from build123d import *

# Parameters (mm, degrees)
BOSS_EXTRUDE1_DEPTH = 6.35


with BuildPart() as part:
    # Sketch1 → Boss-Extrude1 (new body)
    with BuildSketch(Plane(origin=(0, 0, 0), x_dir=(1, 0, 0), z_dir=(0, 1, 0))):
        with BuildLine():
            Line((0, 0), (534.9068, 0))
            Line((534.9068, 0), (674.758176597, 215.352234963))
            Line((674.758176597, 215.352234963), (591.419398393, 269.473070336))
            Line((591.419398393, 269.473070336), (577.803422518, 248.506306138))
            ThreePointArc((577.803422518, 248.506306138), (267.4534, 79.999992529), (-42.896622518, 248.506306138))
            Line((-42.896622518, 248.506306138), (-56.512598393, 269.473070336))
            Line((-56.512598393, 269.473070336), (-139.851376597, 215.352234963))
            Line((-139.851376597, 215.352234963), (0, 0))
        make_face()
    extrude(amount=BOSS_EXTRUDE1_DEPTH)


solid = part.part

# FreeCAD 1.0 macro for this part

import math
import FreeCAD as App
import Part
import Sketcher

V = App.Vector
Q = App.Units.Quantity

doc = App.newDocument("Part")
params = doc.addObject("Spreadsheet::Sheet", "Params")
for row, (alias, value) in enumerate([
    ("sketch1_length", "25 mm"),
    ("pad1_length", "6.35 mm"),
], start=1):
    params.set(f"A{row}", alias)
    params.set(f"B{row}", "=" + value)
    params.setAlias(f"B{row}", alias)

body = doc.addObject("PartDesign::Body", "Body")

# Sketch on XZ plane
sketch1 = body.newObject("Sketcher::SketchObject", "Sketch")
sketch1.AttachmentSupport = (doc.getObject("XZ_Plane"), [""])
sketch1.MapMode = "FlatFace"
sketch1.addGeometry([
    Part.LineSegment(V(0, 0, 0), V(535, 0, 0)),  # 0
    Part.LineSegment(V(535, 0, 0), V(675, -215, 0)),  # 1
    Part.LineSegment(V(675, -215, 0), V(591, -269, 0)),  # 2
    Part.LineSegment(V(591, -269, 0), V(578, -249, 0)),  # 3
    Part.ArcOfCircle(Part.Circle(V(267, -450, 0), V(0, 0, 1), 370), math.radians(33), math.radians(147)),  # 4
    Part.LineSegment(V(-43, -249, 0), V(-57, -269, 0)),  # 5
    Part.LineSegment(V(-57, -269, 0), V(-140, -215, 0)),  # 6
    Part.LineSegment(V(-140, -215, 0), V(0, 0, 0)),  # 7
], False)
sketch1.addConstraint([
    Sketcher.Constraint("Coincident", 0, 2, 1, 1),
    Sketcher.Constraint("Coincident", 1, 2, 2, 1),
    Sketcher.Constraint("Coincident", 2, 2, 3, 1),
    Sketcher.Constraint("Tangent", 3, 2, 4, 1),
    Sketcher.Constraint("Tangent", 4, 2, 5, 1),
    Sketcher.Constraint("Coincident", 5, 2, 6, 1),
    Sketcher.Constraint("Coincident", 6, 2, 7, 1),
    Sketcher.Constraint("Coincident", 7, 2, 0, 1),
    Sketcher.Constraint("Horizontal", 0),
    Sketcher.Constraint("Coincident", 7, 2, -1, 1),
    Sketcher.Constraint("Perpendicular", 1, 2),
    Sketcher.Constraint("Perpendicular", 2, 3),
    Sketcher.Constraint("Perpendicular", 5, 6),
    Sketcher.Constraint("Perpendicular", 6, 7),
    Sketcher.Constraint("Horizontal", 3, 2, 4, 2),
    Sketcher.Constraint("Horizontal", 2, 2, 5, 2),
    Sketcher.Constraint("Horizontal", 1, 2, 6, 2),
    Sketcher.Constraint("Angle", 1, Q("-57 deg")),
    Sketcher.Constraint("Distance", 3, 25.0),
    Sketcher.Constraint("DistanceX", 0, 1, 0, 2, 534.9068),
    Sketcher.Constraint("Radius", 4, 370.049975),
    Sketcher.Constraint("Distance", 1, 256.7781),
])
sketch1.setExpression("Constraints[18]", "Params.sketch1_length")
pad1 = body.newObject("PartDesign::Pad", "Pad")
pad1.Profile = sketch1
pad1.setExpression("Length", "Params.pad1_length")
pad1.Reversed = True

doc.recompute()
